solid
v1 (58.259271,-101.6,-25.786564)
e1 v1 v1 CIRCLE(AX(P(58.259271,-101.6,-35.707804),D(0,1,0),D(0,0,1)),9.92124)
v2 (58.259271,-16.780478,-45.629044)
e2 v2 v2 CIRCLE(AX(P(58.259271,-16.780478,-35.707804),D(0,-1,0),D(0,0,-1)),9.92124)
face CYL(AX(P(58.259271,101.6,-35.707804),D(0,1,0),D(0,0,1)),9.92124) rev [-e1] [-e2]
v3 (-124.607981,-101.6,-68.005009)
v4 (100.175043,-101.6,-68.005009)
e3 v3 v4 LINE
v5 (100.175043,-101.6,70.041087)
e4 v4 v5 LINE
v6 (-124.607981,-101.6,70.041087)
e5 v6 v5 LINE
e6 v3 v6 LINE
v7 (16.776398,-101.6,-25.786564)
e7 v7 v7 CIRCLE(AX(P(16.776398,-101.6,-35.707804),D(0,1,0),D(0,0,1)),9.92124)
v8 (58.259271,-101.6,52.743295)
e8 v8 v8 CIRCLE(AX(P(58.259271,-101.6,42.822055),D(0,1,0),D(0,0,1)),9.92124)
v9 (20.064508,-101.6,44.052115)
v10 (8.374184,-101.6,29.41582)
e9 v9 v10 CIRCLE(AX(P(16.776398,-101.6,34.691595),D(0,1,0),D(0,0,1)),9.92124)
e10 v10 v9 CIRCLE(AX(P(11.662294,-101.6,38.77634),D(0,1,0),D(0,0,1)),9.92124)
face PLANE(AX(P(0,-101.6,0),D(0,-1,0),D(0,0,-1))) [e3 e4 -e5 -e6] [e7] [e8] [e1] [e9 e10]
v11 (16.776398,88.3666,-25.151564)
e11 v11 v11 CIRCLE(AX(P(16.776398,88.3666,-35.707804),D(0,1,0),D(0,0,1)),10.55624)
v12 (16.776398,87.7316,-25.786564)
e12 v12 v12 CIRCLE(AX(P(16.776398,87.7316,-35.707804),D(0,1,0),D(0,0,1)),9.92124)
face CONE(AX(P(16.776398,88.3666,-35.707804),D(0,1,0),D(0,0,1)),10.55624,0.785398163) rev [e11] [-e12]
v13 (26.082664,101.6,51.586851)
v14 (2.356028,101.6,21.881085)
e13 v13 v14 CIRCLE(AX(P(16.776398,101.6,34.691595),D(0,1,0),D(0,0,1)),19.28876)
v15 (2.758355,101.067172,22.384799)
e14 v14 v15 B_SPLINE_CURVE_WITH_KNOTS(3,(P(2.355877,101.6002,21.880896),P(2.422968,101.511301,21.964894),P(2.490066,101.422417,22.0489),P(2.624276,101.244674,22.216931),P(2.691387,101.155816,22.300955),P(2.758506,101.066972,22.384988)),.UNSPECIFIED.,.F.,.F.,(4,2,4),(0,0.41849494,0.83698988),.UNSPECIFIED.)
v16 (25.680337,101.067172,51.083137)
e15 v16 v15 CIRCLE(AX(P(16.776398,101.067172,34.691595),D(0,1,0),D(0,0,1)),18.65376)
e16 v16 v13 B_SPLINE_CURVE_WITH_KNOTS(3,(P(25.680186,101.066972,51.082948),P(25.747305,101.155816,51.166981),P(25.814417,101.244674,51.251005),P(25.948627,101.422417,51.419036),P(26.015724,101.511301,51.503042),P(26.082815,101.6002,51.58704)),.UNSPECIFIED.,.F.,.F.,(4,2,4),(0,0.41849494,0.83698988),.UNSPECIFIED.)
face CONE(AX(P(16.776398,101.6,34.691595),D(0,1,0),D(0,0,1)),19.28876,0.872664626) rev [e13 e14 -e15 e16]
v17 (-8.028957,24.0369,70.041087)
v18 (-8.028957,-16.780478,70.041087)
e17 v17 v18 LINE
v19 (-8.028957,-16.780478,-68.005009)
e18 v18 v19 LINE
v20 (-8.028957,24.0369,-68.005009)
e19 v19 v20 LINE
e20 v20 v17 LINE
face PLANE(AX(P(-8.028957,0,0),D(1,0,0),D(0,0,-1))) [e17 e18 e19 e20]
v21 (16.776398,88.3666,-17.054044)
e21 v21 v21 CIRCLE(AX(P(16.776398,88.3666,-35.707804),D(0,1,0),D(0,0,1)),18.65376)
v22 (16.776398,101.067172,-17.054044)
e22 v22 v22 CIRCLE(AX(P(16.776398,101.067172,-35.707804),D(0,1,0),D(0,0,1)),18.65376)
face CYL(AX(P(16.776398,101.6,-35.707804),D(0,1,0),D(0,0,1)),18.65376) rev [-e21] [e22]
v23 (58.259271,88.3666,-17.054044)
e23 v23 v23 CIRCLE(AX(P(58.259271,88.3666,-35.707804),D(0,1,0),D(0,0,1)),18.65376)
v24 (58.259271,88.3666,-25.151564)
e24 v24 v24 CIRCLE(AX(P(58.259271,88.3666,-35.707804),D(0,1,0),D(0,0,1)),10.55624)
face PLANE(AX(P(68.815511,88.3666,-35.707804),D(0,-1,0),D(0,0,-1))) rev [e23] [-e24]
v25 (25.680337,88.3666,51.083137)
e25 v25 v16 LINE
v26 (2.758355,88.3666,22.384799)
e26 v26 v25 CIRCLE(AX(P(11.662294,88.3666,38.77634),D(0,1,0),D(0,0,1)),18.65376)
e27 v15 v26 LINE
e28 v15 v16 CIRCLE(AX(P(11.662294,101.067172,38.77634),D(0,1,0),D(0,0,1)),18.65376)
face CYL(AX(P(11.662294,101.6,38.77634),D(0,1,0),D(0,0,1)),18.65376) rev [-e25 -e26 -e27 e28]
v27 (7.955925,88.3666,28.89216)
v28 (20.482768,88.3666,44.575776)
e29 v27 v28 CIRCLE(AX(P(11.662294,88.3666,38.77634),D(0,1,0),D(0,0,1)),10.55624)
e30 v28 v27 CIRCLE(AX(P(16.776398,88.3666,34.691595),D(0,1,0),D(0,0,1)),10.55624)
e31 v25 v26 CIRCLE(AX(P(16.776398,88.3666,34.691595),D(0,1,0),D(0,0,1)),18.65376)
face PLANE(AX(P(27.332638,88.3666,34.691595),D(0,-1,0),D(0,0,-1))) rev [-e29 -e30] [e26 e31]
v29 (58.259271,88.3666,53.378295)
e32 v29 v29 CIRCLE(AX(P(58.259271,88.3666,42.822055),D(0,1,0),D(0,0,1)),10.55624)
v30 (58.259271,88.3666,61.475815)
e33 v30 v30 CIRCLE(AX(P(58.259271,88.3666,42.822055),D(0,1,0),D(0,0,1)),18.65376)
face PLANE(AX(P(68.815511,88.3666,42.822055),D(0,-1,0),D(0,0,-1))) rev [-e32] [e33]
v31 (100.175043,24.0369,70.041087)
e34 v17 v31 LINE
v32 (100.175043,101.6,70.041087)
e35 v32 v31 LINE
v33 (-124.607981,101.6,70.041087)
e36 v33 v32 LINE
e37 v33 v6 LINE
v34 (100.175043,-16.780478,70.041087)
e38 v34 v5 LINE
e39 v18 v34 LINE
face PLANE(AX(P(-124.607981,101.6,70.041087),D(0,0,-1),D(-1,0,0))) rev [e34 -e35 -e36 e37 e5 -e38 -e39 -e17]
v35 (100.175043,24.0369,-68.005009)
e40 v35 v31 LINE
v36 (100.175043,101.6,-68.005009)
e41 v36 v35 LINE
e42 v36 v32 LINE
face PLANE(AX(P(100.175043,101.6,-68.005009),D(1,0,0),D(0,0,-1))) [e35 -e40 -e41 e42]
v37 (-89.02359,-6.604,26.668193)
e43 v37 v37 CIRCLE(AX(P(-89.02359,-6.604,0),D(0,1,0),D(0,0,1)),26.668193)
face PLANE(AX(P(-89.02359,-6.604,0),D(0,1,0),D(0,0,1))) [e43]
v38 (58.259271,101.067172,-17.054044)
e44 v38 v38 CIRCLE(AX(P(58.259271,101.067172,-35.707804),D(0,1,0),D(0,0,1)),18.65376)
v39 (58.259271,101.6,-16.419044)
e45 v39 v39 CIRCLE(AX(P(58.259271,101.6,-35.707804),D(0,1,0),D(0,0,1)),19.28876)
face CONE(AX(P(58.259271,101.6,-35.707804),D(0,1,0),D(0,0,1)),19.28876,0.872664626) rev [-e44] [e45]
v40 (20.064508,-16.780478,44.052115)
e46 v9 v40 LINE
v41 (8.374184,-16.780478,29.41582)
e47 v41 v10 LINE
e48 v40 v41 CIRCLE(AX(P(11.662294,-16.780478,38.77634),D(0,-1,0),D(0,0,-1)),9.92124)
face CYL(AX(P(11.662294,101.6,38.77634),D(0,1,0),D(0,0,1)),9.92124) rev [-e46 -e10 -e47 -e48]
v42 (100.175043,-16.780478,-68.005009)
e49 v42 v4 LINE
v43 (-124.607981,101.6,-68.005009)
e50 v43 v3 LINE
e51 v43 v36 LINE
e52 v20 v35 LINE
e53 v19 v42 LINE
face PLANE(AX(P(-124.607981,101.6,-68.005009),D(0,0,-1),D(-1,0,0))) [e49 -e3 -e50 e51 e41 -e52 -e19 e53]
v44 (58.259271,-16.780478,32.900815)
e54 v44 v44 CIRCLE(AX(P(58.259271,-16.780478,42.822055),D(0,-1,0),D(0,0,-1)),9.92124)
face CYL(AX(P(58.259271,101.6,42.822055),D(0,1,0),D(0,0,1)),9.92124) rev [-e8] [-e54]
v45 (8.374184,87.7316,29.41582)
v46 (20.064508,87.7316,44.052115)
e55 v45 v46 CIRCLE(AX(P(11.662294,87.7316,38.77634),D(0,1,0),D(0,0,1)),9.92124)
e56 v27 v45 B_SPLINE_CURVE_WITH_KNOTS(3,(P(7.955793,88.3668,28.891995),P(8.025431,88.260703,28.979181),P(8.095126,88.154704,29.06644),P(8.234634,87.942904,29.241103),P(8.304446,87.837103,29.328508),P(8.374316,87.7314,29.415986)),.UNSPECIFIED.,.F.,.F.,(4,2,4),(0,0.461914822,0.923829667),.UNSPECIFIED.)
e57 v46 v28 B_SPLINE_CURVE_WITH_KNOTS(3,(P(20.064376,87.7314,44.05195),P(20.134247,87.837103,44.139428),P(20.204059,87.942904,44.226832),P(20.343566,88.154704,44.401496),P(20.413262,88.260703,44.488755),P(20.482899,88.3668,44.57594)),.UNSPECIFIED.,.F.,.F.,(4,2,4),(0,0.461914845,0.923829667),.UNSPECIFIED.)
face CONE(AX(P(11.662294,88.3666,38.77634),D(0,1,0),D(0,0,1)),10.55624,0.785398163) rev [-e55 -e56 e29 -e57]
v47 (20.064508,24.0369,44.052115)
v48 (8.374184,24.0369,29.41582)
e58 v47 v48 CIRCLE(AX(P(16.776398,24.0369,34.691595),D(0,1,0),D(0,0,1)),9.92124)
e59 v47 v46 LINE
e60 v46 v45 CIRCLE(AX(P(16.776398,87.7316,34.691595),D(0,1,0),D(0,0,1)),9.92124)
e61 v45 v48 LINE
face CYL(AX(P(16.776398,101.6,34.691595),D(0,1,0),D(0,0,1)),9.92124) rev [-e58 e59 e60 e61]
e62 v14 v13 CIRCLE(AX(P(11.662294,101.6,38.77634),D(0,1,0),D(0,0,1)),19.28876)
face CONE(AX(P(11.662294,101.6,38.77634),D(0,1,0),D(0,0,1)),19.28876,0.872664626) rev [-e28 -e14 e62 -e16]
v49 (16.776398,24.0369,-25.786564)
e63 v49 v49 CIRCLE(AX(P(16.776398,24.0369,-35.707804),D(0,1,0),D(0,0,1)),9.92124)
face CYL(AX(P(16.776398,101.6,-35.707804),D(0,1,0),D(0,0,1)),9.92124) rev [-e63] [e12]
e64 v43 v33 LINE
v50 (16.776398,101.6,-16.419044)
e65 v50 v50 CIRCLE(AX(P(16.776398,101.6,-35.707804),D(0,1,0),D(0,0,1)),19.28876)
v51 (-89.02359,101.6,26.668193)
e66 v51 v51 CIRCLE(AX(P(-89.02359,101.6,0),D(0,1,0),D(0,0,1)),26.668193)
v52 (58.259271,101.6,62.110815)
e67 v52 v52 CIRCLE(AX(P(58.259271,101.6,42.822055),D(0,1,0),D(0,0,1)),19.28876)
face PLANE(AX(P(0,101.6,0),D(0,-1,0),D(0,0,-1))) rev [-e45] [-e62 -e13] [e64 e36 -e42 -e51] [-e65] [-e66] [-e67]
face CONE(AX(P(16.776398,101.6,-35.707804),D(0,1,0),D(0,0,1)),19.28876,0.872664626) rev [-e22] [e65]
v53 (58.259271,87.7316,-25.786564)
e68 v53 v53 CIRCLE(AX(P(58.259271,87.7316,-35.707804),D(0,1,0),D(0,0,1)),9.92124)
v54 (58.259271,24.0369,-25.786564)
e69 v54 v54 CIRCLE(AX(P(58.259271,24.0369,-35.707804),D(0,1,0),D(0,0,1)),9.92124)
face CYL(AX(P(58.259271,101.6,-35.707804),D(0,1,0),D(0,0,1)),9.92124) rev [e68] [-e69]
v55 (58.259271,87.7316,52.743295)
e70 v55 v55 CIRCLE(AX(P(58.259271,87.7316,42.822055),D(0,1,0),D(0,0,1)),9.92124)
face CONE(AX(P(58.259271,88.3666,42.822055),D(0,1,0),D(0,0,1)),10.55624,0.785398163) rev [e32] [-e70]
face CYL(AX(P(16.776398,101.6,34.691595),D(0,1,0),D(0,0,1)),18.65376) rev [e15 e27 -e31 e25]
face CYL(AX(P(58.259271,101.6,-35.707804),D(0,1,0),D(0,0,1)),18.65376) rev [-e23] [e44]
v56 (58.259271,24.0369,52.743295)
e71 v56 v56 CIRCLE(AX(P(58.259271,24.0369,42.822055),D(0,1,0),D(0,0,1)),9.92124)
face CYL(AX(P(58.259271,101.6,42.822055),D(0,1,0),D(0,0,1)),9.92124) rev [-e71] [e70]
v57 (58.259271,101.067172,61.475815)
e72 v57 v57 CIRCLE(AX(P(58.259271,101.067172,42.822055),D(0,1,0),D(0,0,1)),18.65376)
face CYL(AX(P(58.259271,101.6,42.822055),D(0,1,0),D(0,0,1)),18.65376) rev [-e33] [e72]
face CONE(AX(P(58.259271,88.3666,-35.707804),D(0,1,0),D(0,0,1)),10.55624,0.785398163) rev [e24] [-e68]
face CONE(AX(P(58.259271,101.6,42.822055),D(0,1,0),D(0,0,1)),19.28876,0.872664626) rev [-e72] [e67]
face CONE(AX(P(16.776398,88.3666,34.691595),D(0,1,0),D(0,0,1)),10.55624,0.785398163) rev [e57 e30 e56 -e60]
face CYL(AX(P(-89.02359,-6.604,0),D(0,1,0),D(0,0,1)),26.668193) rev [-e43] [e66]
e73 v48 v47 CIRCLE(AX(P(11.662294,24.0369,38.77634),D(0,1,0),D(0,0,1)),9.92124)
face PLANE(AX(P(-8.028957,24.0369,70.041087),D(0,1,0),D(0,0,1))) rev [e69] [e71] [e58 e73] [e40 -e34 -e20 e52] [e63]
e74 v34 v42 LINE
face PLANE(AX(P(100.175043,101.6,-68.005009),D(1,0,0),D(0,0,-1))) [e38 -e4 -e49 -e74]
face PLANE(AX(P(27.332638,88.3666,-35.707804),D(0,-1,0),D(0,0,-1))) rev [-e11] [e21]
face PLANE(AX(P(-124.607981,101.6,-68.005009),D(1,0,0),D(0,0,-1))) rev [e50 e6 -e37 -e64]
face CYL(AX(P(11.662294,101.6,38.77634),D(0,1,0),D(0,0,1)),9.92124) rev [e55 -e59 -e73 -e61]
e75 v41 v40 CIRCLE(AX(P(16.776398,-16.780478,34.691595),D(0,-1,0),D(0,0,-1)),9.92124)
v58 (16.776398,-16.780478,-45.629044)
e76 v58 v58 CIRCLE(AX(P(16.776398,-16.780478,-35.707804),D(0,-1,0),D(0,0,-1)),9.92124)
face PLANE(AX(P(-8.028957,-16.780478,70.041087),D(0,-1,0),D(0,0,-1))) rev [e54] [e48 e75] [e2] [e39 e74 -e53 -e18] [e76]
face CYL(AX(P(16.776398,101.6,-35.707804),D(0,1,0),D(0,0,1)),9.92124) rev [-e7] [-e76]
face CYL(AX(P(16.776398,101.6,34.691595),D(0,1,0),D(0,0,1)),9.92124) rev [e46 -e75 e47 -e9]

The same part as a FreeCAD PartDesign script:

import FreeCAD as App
import Part
import Sketcher
Q = App.Units.Quantity

doc = App.newDocument("Part")
body = doc.addObject("PartDesign::Body", "Body")

sketch1 = body.newObject("Sketcher::SketchObject", "Sketch")
sketch1.AttachmentSupport = (doc.getObject("XZ_Plane"), [""])
sketch1.MapMode = "FlatFace"
sketch1.addGeometry([
    Part.LineSegment(App.Vector(-124.607981, -68.005009, 0), App.Vector(-124.607981, 70.041087, 0)),
    Part.LineSegment(App.Vector(-124.607981, 70.041087, 0), App.Vector(100.175043, 70.041087, 0)),
    Part.LineSegment(App.Vector(100.175043, 70.041087, 0), App.Vector(100.175043, -68.005009, 0)),
    Part.LineSegment(App.Vector(100.175043, -68.005009, 0), App.Vector(-124.607981, -68.005009, 0)),
], False)
sketch1.addConstraint([
    Sketcher.Constraint("Coincident", 0, 2, 1, 1),
    Sketcher.Constraint("Coincident", 1, 2, 2, 1),
    Sketcher.Constraint("Coincident", 2, 2, 3, 1),
    Sketcher.Constraint("Coincident", 3, 2, 0, 1),
    Sketcher.Constraint("Vertical", 0),
    Sketcher.Constraint("Horizontal", 1),
    Sketcher.Constraint("Vertical", 2),
    Sketcher.Constraint("Horizontal", 3),
    Sketcher.Constraint("DistanceX", 1, 1, 1, 2, Q("224.783024 mm")),
    Sketcher.Constraint("DistanceY", 0, 1, 0, 2, Q("138.046096 mm")),
    Sketcher.Constraint("DistanceX", 0, 2, -1, 1, Q("124.607981 mm")),
    Sketcher.Constraint("DistanceY", 2, 2, -1, 1, Q("68.005009 mm")),
])
pad1 = body.newObject("PartDesign::Pad", "Pad")
pad1.Profile = sketch1
pad1.Length = Q("8 in")
pad1.Midplane = True

sketch2 = body.newObject("Sketcher::SketchObject", "Sketch001")
sketch2.AttachmentSupport = (doc.getObject("XZ_Plane"), [""])
sketch2.MapMode = "FlatFace"
sketch2.AttachmentOffset = App.Placement(App.Vector(0, 0, -4 * 25.4), App.Rotation())
sketch2.addGeometry(Part.Circle(App.Vector(-89.02359, 0, 0), App.Vector(0, 0, 1), 26.668193), False)
sketch2.addConstraint([
    Sketcher.Constraint("PointOnObject", 0, 3, -1),
    Sketcher.Constraint("Diameter", 0, Q("53.336387 mm")),
    Sketcher.Constraint("DistanceX", 0, 3, -1, 1, Q("89.02359 mm")),
])
pocket1 = body.newObject("PartDesign::Pocket", "Pocket")
pocket1.Profile = sketch2
pocket1.Length = Q("4.26 in")
pocket1.Reversed = True

sketch3 = body.newObject("Sketcher::SketchObject", "Sketch002")
sketch3.AttachmentSupport = (doc.getObject("YZ_Plane"), [""])
sketch3.MapMode = "FlatFace"
sketch3.AttachmentOffset = App.Placement(App.Vector(0, 0, 100.175043), App.Rotation())
sketch3.addGeometry([
    Part.LineSegment(App.Vector(24.0369, 70.041087, 0), App.Vector(-16.780478, 70.041087, 0)),
    Part.LineSegment(App.Vector(-16.780478, 70.041087, 0), App.Vector(-16.780478, -68.005009, 0)),
    Part.LineSegment(App.Vector(-16.780478, -68.005009, 0), App.Vector(24.0369, -68.005009, 0)),
    Part.LineSegment(App.Vector(24.0369, -68.005009, 0), App.Vector(24.0369, 70.041087, 0)),
], False)
sketch3.addConstraint([
    Sketcher.Constraint("Coincident", 0, 2, 1, 1),
    Sketcher.Constraint("Coincident", 1, 2, 2, 1),
    Sketcher.Constraint("Coincident", 2, 2, 3, 1),
    Sketcher.Constraint("Coincident", 3, 2, 0, 1),
    Sketcher.Constraint("Horizontal", 0),
    Sketcher.Constraint("Vertical", 1),
    Sketcher.Constraint("Horizontal", 2),
    Sketcher.Constraint("Vertical", 3),
    Sketcher.Constraint("DistanceX", -1, 1, 2, 2, Q("24.0369 mm")),
    Sketcher.Constraint("DistanceX", 0, 2, 0, 1, Q("40.817378 mm")),
    Sketcher.Constraint("DistanceY", 1, 2, 1, 1, Q("138.046096 mm")),
    Sketcher.Constraint("DistanceY", 1, 2, -1, 1, Q("68.005009 mm")),
])
pocket2 = body.newObject("PartDesign::Pocket", "Pocket001")
pocket2.Profile = sketch3
pocket2.Length = Q("4.26 in")

sketch4 = body.newObject("Sketcher::SketchObject", "Sketch003")
sketch4.AttachmentSupport = (doc.getObject("YZ_Plane"), [""])
sketch4.MapMode = "FlatFace"
sketch4.AttachmentOffset = App.Placement(App.Vector(0, 0, 58.259271), App.Rotation())
sketch4.addGeometry([
    Part.LineSegment(App.Vector(-101.6, 42.822055, 0), App.Vector(101.6, 42.822055, 0)),
    Part.LineSegment(App.Vector(101.6, 42.822055, 0), App.Vector(101.6, 62.110815, 0)),
    Part.LineSegment(App.Vector(101.6, 62.110815, 0), App.Vector(101.067172, 61.475815, 0)),
    Part.LineSegment(App.Vector(101.067172, 61.475815, 0), App.Vector(88.3666, 61.475815, 0)),
    Part.LineSegment(App.Vector(88.3666, 61.475815, 0), App.Vector(88.3666, 53.378295, 0)),
    Part.LineSegment(App.Vector(88.3666, 53.378295, 0), App.Vector(87.7316, 52.743295, 0)),
    Part.LineSegment(App.Vector(87.7316, 52.743295, 0), App.Vector(-101.6, 52.743295, 0)),
    Part.LineSegment(App.Vector(-101.6, 52.743295, 0), App.Vector(-101.6, 42.822055, 0)),
], False)
sketch4.addGeometry(Part.LineSegment(App.Vector(101.6, 42.822055, 0), App.Vector(-101.6, 42.822055, 0)), True)
sketch4.addConstraint([
    Sketcher.Constraint("Coincident", 0, 2, 1, 1),
    Sketcher.Constraint("Coincident", 1, 2, 2, 1),
    Sketcher.Constraint("Coincident", 2, 2, 3, 1),
    Sketcher.Constraint("Coincident", 3, 2, 4, 1),
    Sketcher.Constraint("Coincident", 4, 2, 5, 1),
    Sketcher.Constraint("Coincident", 5, 2, 6, 1),
    Sketcher.Constraint("Coincident", 6, 2, 7, 1),
    Sketcher.Constraint("Coincident", 7, 2, 0, 1),
    Sketcher.Constraint("Horizontal", 0),
    Sketcher.Constraint("Vertical", 1),
    Sketcher.Constraint("Horizontal", 3),
    Sketcher.Constraint("Vertical", 4),
    Sketcher.Constraint("Horizontal", 6),
    Sketcher.Constraint("Vertical", 7),
    Sketcher.Constraint("Horizontal", 8),
    Sketcher.Constraint("Coincident", 8, 1, 0, 2),
    Sketcher.Constraint("Vertical", 6, 2, 8, 2),
    Sketcher.Constraint("DistanceX", 0, 1, 0, 2, Q("8 in")),
    Sketcher.Constraint("DistanceX", -1, 1, 0, 2, Q("4 in")),
    Sketcher.Constraint("Angle", 2, Q("-130 deg")),
    Sketcher.Constraint("Angle", 5, Q("-135 deg")),
    Sketcher.Constraint("DistanceX", 6, 2, 6, 1, Q("7.454 in")),
    Sketcher.Constraint("DistanceY", 1, 1, 1, 2, Q("0.7594 in")),
    Sketcher.Constraint("DistanceY", 4, 2, 4, 1, Q("0.3188 in")),
    Sketcher.Constraint("DistanceY", 7, 2, 7, 1, Q("0.3906 in")),
    Sketcher.Constraint("DistanceX", -1, 1, 3, 2, Q("3.479 in")),
    Sketcher.Constraint("DistanceY", -1, 1, 0, 2, Q("42.822055 mm")),
])
groove = body.newObject("PartDesign::Groove", "Groove")
groove.Profile = sketch4
groove.ReferenceAxis = (sketch4, ["Axis0"])
groove.Angle = 360
doc.recompute()

linearpattern = body.newObject("PartDesign::LinearPattern", "LinearPattern")
linearpattern.Originals = [groove]
linearpattern.Direction = (doc.getObject("Z_Axis"), [""])
linearpattern.Mode = "offset"
linearpattern.Offset = 78.529859
linearpattern.Occurrences = 2
linearpattern.Reversed = True
body.Tip = linearpattern
doc.recompute()

datumline = body.newObject("PartDesign::Line", "DatumLine")
datumline.Placement = App.Placement(App.Vector(0, 0, 0), App.Rotation(App.Vector(0, 0, 1), App.Vector(-0.467080543, 0, -0.884214774)))
linearpattern2 = body.newObject("PartDesign::LinearPattern", "LinearPattern001")
linearpattern2.Originals = [groove]
linearpattern2.Direction = (datumline, [""])
linearpattern2.Mode = "offset"
linearpattern2.Offset = 88.813104
linearpattern2.Occurrences = 2
body.Tip = linearpattern2
doc.recompute()

datumline2 = body.newObject("PartDesign::Line", "DatumLine001")
datumline2.Placement = App.Placement(App.Vector(0, 0, 0), App.Rotation(App.Vector(0, 0, 1), App.Vector(-0.996252013, 0, -0.08649813)))
linearpattern3 = body.newObject("PartDesign::LinearPattern", "LinearPattern002")
linearpattern3.Originals = [groove]
linearpattern3.Direction = (datumline2, [""])
linearpattern3.Mode = "offset"
linearpattern3.Offset = 46.772278
linearpattern3.Occurrences = 2
body.Tip = linearpattern3
doc.recompute()

datumline3 = body.newObject("PartDesign::Line", "DatumLine002")
datumline3.Placement = App.Placement(App.Vector(0, 0, 0), App.Rotation(App.Vector(0, 0, 1), App.Vector(-0.981329099, 0, -0.192336163)))
linearpattern4 = body.newObject("PartDesign::LinearPattern", "LinearPattern003")
linearpattern4.Originals = [groove]
linearpattern4.Direction = (datumline3, [""])
linearpattern4.Mode = "offset"
linearpattern4.Offset = 42.272132
linearpattern4.Occurrences = 2
body.Tip = linearpattern4

doc.recompute()
